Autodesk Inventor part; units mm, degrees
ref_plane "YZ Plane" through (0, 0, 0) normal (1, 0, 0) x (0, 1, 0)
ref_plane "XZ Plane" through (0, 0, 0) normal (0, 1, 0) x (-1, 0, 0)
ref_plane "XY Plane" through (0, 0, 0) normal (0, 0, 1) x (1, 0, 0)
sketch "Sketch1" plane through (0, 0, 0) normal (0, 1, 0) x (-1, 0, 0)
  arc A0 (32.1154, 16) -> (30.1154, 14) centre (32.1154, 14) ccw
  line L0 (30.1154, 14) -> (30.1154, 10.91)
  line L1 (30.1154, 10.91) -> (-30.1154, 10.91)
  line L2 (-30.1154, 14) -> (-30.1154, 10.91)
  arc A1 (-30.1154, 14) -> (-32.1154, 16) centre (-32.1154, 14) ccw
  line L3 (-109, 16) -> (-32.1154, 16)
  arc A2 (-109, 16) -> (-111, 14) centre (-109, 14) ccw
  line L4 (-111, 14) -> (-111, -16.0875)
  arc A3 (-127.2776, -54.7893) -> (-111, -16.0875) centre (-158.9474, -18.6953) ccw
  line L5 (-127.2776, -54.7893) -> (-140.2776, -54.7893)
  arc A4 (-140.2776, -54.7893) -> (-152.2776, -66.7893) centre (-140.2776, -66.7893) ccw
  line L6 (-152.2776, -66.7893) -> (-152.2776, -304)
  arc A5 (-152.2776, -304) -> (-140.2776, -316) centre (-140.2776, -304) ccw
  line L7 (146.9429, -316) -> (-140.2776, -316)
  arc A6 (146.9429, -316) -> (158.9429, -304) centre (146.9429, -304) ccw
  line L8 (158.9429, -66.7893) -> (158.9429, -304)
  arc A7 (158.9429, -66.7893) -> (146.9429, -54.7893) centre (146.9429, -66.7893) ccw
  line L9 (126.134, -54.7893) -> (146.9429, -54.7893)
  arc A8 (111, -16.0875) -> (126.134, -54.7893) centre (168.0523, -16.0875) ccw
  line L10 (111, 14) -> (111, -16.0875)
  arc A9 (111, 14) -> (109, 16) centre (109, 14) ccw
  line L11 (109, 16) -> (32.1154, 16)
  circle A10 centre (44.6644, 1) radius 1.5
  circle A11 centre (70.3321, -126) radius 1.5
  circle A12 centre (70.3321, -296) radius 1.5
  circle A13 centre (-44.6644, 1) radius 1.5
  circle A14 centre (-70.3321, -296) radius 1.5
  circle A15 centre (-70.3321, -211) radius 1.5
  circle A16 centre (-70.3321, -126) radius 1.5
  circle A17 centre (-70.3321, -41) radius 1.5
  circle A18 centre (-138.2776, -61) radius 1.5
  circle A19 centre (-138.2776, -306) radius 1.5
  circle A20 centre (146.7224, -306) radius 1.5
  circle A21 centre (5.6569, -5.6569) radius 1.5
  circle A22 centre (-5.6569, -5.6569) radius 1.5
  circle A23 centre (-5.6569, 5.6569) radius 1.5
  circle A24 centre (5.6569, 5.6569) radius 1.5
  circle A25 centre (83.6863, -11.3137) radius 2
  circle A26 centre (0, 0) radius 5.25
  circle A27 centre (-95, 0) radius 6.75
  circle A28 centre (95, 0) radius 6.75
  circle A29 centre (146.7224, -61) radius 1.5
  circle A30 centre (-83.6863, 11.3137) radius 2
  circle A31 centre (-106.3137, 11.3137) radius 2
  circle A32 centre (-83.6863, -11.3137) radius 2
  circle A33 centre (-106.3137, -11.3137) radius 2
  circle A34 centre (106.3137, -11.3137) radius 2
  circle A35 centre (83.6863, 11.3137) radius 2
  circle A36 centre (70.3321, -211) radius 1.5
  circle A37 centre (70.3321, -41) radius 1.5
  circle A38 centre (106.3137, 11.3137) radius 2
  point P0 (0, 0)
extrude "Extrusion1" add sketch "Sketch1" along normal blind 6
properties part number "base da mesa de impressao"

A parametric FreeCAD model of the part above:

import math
import FreeCAD as App
import Part
import Sketcher
from FreeCAD import Vector
Q = App.Units.Quantity

doc = App.newDocument("Part")
params = doc.addObject("Spreadsheet::Sheet", "Params")
for row, (alias, value) in enumerate([
    ("sketch1_diameter", "3 mm"),
    ("sketch1_diameter2", "4 mm"),
    ("sketch1_radius", "12 mm"),
    ("sketch1_diameter3", "13.5 mm"),
    ("sketch1_diameter4", "10.5 mm"),
    ("pad1_length", "6 mm"),
], start=1):
    params.set(f"A{row}", alias)
    params.set(f"B{row}", "=" + value)
    params.setAlias(f"B{row}", alias)

body = doc.addObject("PartDesign::Body", "Body")

# Sketch on XZ plane
sketch1 = body.newObject("Sketcher::SketchObject", "Sketch")
sketch1.AttachmentSupport = (doc.getObject("XZ_Plane"), [""])
sketch1.MapMode = "FlatFace"
sketch1.addGeometry([
    Part.LineSegment(Vector(-109, 16, 0), Vector(-32.1, 16, 0)),  # 0
    Part.ArcOfCircle(Part.Circle(Vector(-32.1, 14, 0), Vector(0, 0, 1), 2), math.radians(0), math.radians(90)),  # 1
    Part.LineSegment(Vector(-30.1, 14, 0), Vector(-30.1, 10.9, 0)),  # 2
    Part.LineSegment(Vector(-30.1, 10.9, 0), Vector(30.1, 10.9, 0)),  # 3
    Part.LineSegment(Vector(30.1, 10.9, 0), Vector(30.1, 14, 0)),  # 4
    Part.ArcOfCircle(Part.Circle(Vector(32.1, 14, 0), Vector(0, 0, 1), 2), math.radians(90), math.radians(180)),  # 5
    Part.LineSegment(Vector(32.1, 16, 0), Vector(109, 16, 0)),  # 6
    Part.ArcOfCircle(Part.Circle(Vector(109, 14, 0), Vector(0, 0, 1), 2), math.radians(0), math.radians(90)),  # 7
    Part.LineSegment(Vector(111, 14, 0), Vector(111, -16.1, 0)),  # 8
    Part.ArcOfCircle(Part.Circle(Vector(158.9, -18.7, 0), Vector(0, 0, 1), 48), math.radians(177), math.radians(229)),  # 9
    Part.LineSegment(Vector(127.3, -54.8, 0), Vector(140.3, -54.8, 0)),  # 10
    Part.ArcOfCircle(Part.Circle(Vector(140.3, -66.8, 0), Vector(0, 0, 1), 12), math.radians(0), math.radians(90)),  # 11
    Part.LineSegment(Vector(152.3, -66.8, 0), Vector(152.3, -304, 0)),  # 12
    Part.ArcOfCircle(Part.Circle(Vector(140.3, -304, 0), Vector(0, 0, 1), 12), math.radians(-90), math.radians(0)),  # 13
    Part.LineSegment(Vector(140.3, -316, 0), Vector(-146.9, -316, 0)),  # 14
    Part.ArcOfCircle(Part.Circle(Vector(-146.9, -304, 0), Vector(0, 0, 1), 12), math.radians(180), math.radians(270)),  # 15
    Part.LineSegment(Vector(-158.9, -304, 0), Vector(-158.9, -66.8, 0)),  # 16
    Part.ArcOfCircle(Part.Circle(Vector(-146.9, -66.8, 0), Vector(0, 0, 1), 12), math.radians(90), math.radians(180)),  # 17
    Part.LineSegment(Vector(-146.9, -54.8, 0), Vector(-126.1, -54.8, 0)),  # 18
    Part.ArcOfCircle(Part.Circle(Vector(-168.1, -16.1, 0), Vector(0, 0, 1), 57.1), math.radians(-43), math.radians(0)),  # 19
    Part.LineSegment(Vector(-111, -16.1, 0), Vector(-111, 14, 0)),  # 20
    Part.ArcOfCircle(Part.Circle(Vector(-109, 14, 0), Vector(0, 0, 1), 2), math.radians(90), math.radians(180)),  # 21
    Part.Circle(Vector(138.3, -306, 0), Vector(0, 0, 1), 1.5),  # 22
    Part.Circle(Vector(70.3, -296, 0), Vector(0, 0, 1), 1.5),  # 23
    Part.Circle(Vector(70.3, -211, 0), Vector(0, 0, 1), 1.5),  # 24
    Part.Circle(Vector(-70.3, -296, 0), Vector(0, 0, 1), 1.5),  # 25
    Part.Circle(Vector(-146.7, -306, 0), Vector(0, 0, 1), 1.5),  # 26
    Part.Circle(Vector(-70.3, -211, 0), Vector(0, 0, 1), 1.5),  # 27
    Part.Circle(Vector(70.3, -126, 0), Vector(0, 0, 1), 1.5),  # 28
    Part.Circle(Vector(138.3, -61, 0), Vector(0, 0, 1), 1.5),  # 29
    Part.Circle(Vector(106.3, -11.3, 0), Vector(0, 0, 1), 2),  # 30
    Part.Circle(Vector(83.7, -11.3, 0), Vector(0, 0, 1), 2),  # 31
    Part.Circle(Vector(95, 0, 0), Vector(0, 0, 1), 6.8),  # 32
    Part.Circle(Vector(106.3, 11.3, 0), Vector(0, 0, 1), 2),  # 33
    Part.Circle(Vector(83.7, 11.3, 0), Vector(0, 0, 1), 2),  # 34
    Part.Circle(Vector(70.3, -41, 0), Vector(0, 0, 1), 1.5),  # 35
    Part.Circle(Vector(44.7, 1, 0), Vector(0, 0, 1), 1.5),  # 36
    Part.Circle(Vector(5.7, -5.7, 0), Vector(0, 0, 1), 1.5),  # 37
    Part.Circle(Vector(0, 0, 0), Vector(0, 0, 1), 5.2),  # 38
    Part.Circle(Vector(5.7, 5.7, 0), Vector(0, 0, 1), 1.5),  # 39
    Part.Circle(Vector(-70.3, -126, 0), Vector(0, 0, 1), 1.5),  # 40
    Part.Circle(Vector(-70.3, -41, 0), Vector(0, 0, 1), 1.5),  # 41
    Part.Circle(Vector(-5.7, -5.7, 0), Vector(0, 0, 1), 1.5),  # 42
    Part.Circle(Vector(-5.7, 5.7, 0), Vector(0, 0, 1), 1.5),  # 43
    Part.Circle(Vector(-44.7, 1, 0), Vector(0, 0, 1), 1.5),  # 44
    Part.Circle(Vector(-146.7, -61, 0), Vector(0, 0, 1), 1.5),  # 45
    Part.Circle(Vector(-83.7, -11.3, 0), Vector(0, 0, 1), 2),  # 46
    Part.Circle(Vector(-106.3, -11.3, 0), Vector(0, 0, 1), 2),  # 47
    Part.Circle(Vector(-95, 0, 0), Vector(0, 0, 1), 6.8),  # 48
    Part.Circle(Vector(-83.7, 11.3, 0), Vector(0, 0, 1), 2),  # 49
    Part.Circle(Vector(-106.3, 11.3, 0), Vector(0, 0, 1), 2),  # 50
], False)
sketch1.addConstraint([
    Sketcher.Constraint("Tangent", 0, 2, 1, 2),
    Sketcher.Constraint("Tangent", 1, 1, 2, 1),
    Sketcher.Constraint("Coincident", 2, 2, 3, 1),
    Sketcher.Constraint("Coincident", 3, 2, 4, 1),
    Sketcher.Constraint("Tangent", 4, 2, 5, 2),
    Sketcher.Constraint("Tangent", 5, 1, 6, 1),
    Sketcher.Constraint("Tangent", 6, 2, 7, 2),
    Sketcher.Constraint("Tangent", 7, 1, 8, 1),
    Sketcher.Constraint("Coincident", 8, 2, 9, 1),
    Sketcher.Constraint("Coincident", 9, 2, 10, 1),
    Sketcher.Constraint("Tangent", 10, 2, 11, 2),
    Sketcher.Constraint("Tangent", 11, 1, 12, 1),
    Sketcher.Constraint("Tangent", 12, 2, 13, 2),
    Sketcher.Constraint("Tangent", 13, 1, 14, 1),
    Sketcher.Constraint("Tangent", 14, 2, 15, 2),
    Sketcher.Constraint("Tangent", 15, 1, 16, 1),
    Sketcher.Constraint("Tangent", 16, 2, 17, 2),
    Sketcher.Constraint("Tangent", 17, 1, 18, 1),
    Sketcher.Constraint("Coincident", 18, 2, 19, 1),
    Sketcher.Constraint("Tangent", 19, 2, 20, 1),
    Sketcher.Constraint("Tangent", 20, 2, 21, 2),
    Sketcher.Constraint("Tangent", 21, 1, 0, 1),
    Sketcher.Constraint("Horizontal", 0),
    Sketcher.Constraint("Vertical", 2),
    Sketcher.Constraint("Horizontal", 3),
    Sketcher.Constraint("Vertical", 4),
    Sketcher.Constraint("Horizontal", 6),
    Sketcher.Constraint("Vertical", 8),
    Sketcher.Constraint("Horizontal", 10),
    Sketcher.Constraint("Vertical", 12),
    Sketcher.Constraint("Horizontal", 14),
    Sketcher.Constraint("Vertical", 16),
    Sketcher.Constraint("Horizontal", 18),
    Sketcher.Constraint("Vertical", 20),
    Sketcher.Constraint("Coincident", 38, 3, -1, 1),
    Sketcher.Constraint("Equal", 1, 5),
    Sketcher.Constraint("Equal", 5, 7),
    Sketcher.Constraint("Equal", 11, 13),
    Sketcher.Constraint("Equal", 13, 15),
    Sketcher.Constraint("Equal", 15, 17),
    Sketcher.Constraint("Equal", 7, 21),
    Sketcher.Constraint("Equal", 22, 23),
    Sketcher.Constraint("Equal", 23, 24),
    Sketcher.Constraint("Equal", 24, 25),
    Sketcher.Constraint("Equal", 25, 26),
    Sketcher.Constraint("Equal", 26, 27),
    Sketcher.Constraint("Equal", 27, 28),
    Sketcher.Constraint("Equal", 28, 29),
    Sketcher.Constraint("Equal", 21, 30),
    Sketcher.Constraint("Equal", 30, 31),
    Sketcher.Constraint("Equal", 31, 33),
    Sketcher.Constraint("Equal", 33, 34),
    Sketcher.Constraint("Equal", 29, 35),
    Sketcher.Constraint("Equal", 35, 36),
    Sketcher.Constraint("Equal", 36, 37),
    Sketcher.Constraint("Equal", 37, 39),
    Sketcher.Constraint("Equal", 39, 40),
    Sketcher.Constraint("Equal", 40, 41),
    Sketcher.Constraint("Equal", 41, 42),
    Sketcher.Constraint("Equal", 42, 43),
    Sketcher.Constraint("Equal", 43, 44),
    Sketcher.Constraint("Equal", 44, 45),
    Sketcher.Constraint("Equal", 34, 46),
    Sketcher.Constraint("Equal", 46, 47),
    Sketcher.Constraint("Equal", 32, 48),
    Sketcher.Constraint("Equal", 47, 49),
    Sketcher.Constraint("Equal", 49, 50),
    Sketcher.Constraint("Symmetric", 39, 3, 42, 3, -1, 1),
    Sketcher.Constraint("Symmetric", 37, 3, 43, 3, -1, 1),
    Sketcher.Constraint("Symmetric", 34, 3, 46, 3, -1, 1),
    Sketcher.Constraint("Symmetric", 33, 3, 47, 3, -1, 1),
    Sketcher.Constraint("Symmetric", 32, 3, 48, 3, -1, 1),
    Sketcher.Constraint("Symmetric", 31, 3, 49, 3, -1, 1),
    Sketcher.Constraint("Symmetric", 30, 3, 50, 3, -1, 1),
    Sketcher.Constraint("Symmetric", 1, 3, 5, 3, -2),
    Sketcher.Constraint("Symmetric", 23, 3, 25, 3, -2),
    Sketcher.Constraint("Symmetric", 24, 3, 27, 3, -2),
    Sketcher.Constraint("Symmetric", 28, 3, 40, 3, -2),
    Sketcher.Constraint("Symmetric", 35, 3, 41, 3, -2),
    Sketcher.Constraint("Symmetric", 37, 3, 42, 3, -2),
    Sketcher.Constraint("Symmetric", 36, 3, 44, 3, -2),
    Sketcher.Constraint("Symmetric", 31, 3, 46, 3, -2),
    Sketcher.Constraint("Symmetric", 30, 3, 47, 3, -2),
    Sketcher.Constraint("Symmetric", 8, 2, 19, 2, -2),
    Sketcher.Constraint("PointOnObject", 32, 3, -1),
    Sketcher.Constraint("Horizontal", 11, 3, 17, 3),
    Sketcher.Constraint("Horizontal", 22, 3, 26, 3),
    Sketcher.Constraint("Horizontal", 30, 3, 31, 3),
    Sketcher.Constraint("Horizontal", 29, 3, 45, 3),
    Sketcher.Constraint("Vertical", 23, 3, 24, 3),
    Sketcher.Constraint("Vertical", 24, 3, 28, 3),
    Sketcher.Constraint("Vertical", 22, 3, 29, 3),
    Sketcher.Constraint("Vertical", 28, 3, 35, 3),
    Sketcher.Constraint("Vertical", 26, 3, 45, 3),
    Sketcher.Constraint("Diameter", 22, Q("3 mm")),
    Sketcher.Constraint("Diameter", 30, Q("4 mm")),
    Sketcher.Constraint("Radius", 11, Q("12 mm")),
    Sketcher.Constraint("Diameter", 32, Q("13.5 mm")),
    Sketcher.Constraint("Diameter", 38, Q("10.5 mm")),
    Sketcher.Constraint("DistanceX", 10, 1, 10, 2, Q("13 mm")),
    Sketcher.Constraint("DistanceY", -1, 1, 1, 3, Q("14 mm")),
    Sketcher.Constraint("DistanceX", -1, 1, 7, 3, Q("109 mm")),
    Sketcher.Constraint("DistanceY", 13, 3, -1, 1, Q("304 mm")),
    Sketcher.Constraint("DistanceY", 22, 3, -1, 1, Q("306 mm")),
    Sketcher.Constraint("DistanceY", 23, 3, -1, 1, Q("296 mm")),
    Sketcher.Constraint("DistanceY", 24, 3, -1, 1, Q("211 mm")),
    Sketcher.Constraint("DistanceY", 28, 3, -1, 1, Q("126 mm")),
    Sketcher.Constraint("DistanceY", 29, 3, -1, 1, Q("61 mm")),
    Sketcher.Constraint("DistanceX", -1, 1, 32, 3, Q("95 mm")),
    Sketcher.Constraint("DistanceY", 35, 3, -1, 1, Q("41 mm")),
    Sketcher.Constraint("DistanceY", -1, 1, 36, 3, Q("1 mm")),
    Sketcher.Constraint("DistanceY", 2, 2, 2, 1, Q("3.09 mm")),
    Sketcher.Constraint("Radius", 9, Q("48.0183 mm")),
    Sketcher.Constraint("Radius", 19, Q("57.0523 mm")),
    Sketcher.Constraint("DistanceX", 18, 1, 18, 2, Q("20.809 mm")),
    Sketcher.Constraint("DistanceX", 0, 1, 0, 2, Q("76.8846 mm")),
    Sketcher.Constraint("DistanceX", 14, 2, 14, 1, Q("287.2205 mm")),
    Sketcher.Constraint("DistanceY", 8, 2, 8, 1, Q("30.0875 mm")),
    Sketcher.Constraint("DistanceY", 12, 2, 12, 1, Q("237.2107 mm")),
    Sketcher.Constraint("DistanceX", -1, 1, 23, 3, Q("70.332 mm")),
    Sketcher.Constraint("DistanceX", -1, 1, 37, 3, Q("5.657 mm")),
    Sketcher.Constraint("DistanceY", 37, 3, -1, 1, Q("5.657 mm")),
    Sketcher.Constraint("DistanceX", -1, 1, 22, 3, Q("138.2776 mm")),
    Sketcher.Constraint("DistanceX", 26, 3, -1, 1, Q("146.7224 mm")),
    Sketcher.Constraint("DistanceX", -1, 1, 30, 3, Q("106.3137 mm")),
    Sketcher.Constraint("DistanceY", 30, 3, -1, 1, Q("11.3137 mm")),
    Sketcher.Constraint("DistanceX", -1, 1, 31, 3, Q("83.6863 mm")),
    Sketcher.Constraint("DistanceX", -1, 1, 36, 3, Q("44.6644 mm")),
])
sketch1.setExpression("Constraints[94]", "Params.sketch1_diameter")
sketch1.setExpression("Constraints[95]", "Params.sketch1_diameter2")
sketch1.setExpression("Constraints[96]", "Params.sketch1_radius")
sketch1.setExpression("Constraints[97]", "Params.sketch1_diameter3")
sketch1.setExpression("Constraints[98]", "Params.sketch1_diameter4")
pad1 = body.newObject("PartDesign::Pad", "Pad")
pad1.Profile = sketch1
pad1.setExpression("Length", "Params.pad1_length")
pad1.Reversed = True

doc.recompute()
